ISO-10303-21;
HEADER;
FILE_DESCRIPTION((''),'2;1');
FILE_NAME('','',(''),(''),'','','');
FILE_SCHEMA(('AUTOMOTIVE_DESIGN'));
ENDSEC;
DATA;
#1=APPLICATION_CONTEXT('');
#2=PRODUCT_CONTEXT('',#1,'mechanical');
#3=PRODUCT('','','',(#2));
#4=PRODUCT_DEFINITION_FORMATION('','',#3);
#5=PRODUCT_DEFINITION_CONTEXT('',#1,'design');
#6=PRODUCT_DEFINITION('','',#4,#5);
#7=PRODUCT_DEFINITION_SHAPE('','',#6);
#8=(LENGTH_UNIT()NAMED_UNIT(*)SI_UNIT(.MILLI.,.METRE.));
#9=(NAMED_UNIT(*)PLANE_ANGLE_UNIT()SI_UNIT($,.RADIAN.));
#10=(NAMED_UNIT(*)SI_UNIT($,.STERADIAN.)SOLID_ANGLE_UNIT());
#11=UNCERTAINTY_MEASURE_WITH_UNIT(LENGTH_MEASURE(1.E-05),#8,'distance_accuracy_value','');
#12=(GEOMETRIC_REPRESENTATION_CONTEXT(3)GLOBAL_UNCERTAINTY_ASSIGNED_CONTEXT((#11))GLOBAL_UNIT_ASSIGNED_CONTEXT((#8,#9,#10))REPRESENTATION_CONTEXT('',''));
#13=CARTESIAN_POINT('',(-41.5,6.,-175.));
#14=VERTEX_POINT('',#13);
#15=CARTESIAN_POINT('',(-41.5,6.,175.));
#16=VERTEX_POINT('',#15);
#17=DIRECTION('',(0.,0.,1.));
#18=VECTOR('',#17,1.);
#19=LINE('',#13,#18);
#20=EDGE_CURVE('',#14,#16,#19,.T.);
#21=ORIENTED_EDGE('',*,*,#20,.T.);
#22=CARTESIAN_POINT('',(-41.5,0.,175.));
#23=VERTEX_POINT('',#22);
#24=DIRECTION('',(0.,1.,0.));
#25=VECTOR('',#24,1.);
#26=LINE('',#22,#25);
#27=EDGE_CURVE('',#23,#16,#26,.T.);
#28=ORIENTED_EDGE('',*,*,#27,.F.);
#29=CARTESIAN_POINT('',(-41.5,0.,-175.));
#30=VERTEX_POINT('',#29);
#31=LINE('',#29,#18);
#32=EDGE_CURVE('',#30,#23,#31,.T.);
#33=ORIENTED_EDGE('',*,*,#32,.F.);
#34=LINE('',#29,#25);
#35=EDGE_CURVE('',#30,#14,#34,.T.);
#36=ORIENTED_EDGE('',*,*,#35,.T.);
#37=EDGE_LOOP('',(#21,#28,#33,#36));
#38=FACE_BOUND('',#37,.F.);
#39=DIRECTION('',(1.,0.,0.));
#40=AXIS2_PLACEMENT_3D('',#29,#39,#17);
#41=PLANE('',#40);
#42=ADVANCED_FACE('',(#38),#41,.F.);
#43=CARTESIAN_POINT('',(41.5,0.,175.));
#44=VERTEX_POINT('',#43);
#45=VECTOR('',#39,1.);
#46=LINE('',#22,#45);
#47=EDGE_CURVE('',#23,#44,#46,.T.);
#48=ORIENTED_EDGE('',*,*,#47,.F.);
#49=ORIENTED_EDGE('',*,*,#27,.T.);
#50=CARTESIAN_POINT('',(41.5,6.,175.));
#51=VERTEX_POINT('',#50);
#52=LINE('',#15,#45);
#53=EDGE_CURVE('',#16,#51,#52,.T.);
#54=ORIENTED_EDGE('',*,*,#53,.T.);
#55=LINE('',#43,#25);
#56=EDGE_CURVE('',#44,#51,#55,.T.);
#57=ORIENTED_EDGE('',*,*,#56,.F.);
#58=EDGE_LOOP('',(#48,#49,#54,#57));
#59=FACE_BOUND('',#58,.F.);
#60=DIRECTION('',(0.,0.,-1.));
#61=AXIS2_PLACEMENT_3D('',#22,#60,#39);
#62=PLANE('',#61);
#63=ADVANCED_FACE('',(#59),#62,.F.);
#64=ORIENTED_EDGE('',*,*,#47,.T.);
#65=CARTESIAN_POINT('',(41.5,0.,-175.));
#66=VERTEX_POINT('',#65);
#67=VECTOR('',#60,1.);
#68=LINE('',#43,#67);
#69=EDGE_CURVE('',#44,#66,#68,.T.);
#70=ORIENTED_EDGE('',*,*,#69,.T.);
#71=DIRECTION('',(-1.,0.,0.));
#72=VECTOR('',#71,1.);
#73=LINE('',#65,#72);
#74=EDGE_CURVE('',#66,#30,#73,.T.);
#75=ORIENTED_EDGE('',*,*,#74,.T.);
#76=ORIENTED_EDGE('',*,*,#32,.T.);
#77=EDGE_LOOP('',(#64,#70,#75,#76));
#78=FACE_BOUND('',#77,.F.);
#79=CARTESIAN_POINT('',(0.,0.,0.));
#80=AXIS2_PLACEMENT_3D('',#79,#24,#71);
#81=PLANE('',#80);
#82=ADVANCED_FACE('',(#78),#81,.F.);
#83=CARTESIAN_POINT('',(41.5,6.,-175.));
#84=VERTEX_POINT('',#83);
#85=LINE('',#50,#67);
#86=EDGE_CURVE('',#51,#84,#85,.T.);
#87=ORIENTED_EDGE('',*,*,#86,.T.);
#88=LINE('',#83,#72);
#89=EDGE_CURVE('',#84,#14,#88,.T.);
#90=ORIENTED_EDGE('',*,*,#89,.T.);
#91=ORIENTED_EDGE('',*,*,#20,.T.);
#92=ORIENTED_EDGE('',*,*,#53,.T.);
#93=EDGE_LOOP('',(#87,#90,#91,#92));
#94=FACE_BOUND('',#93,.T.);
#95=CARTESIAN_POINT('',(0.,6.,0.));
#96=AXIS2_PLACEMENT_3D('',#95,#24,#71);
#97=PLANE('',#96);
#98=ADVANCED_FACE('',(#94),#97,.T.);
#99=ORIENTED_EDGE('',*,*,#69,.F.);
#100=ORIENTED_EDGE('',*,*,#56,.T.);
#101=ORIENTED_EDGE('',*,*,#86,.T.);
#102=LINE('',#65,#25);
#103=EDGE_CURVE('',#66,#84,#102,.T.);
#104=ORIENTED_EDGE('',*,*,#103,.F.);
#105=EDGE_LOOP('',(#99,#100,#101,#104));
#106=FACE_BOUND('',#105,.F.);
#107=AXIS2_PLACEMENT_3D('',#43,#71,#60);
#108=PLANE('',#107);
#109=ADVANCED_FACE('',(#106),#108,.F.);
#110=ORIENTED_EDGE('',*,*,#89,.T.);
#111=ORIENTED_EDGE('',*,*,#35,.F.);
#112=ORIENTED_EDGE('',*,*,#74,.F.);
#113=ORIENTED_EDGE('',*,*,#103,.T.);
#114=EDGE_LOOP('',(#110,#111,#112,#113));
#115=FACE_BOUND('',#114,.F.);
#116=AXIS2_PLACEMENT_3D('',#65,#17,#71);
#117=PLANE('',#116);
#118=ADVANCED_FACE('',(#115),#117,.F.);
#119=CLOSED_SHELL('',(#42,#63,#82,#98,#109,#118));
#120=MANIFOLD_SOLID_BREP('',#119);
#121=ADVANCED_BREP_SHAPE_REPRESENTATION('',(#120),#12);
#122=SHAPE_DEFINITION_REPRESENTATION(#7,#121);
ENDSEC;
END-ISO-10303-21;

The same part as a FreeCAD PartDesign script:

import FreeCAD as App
import Part
import Sketcher
from FreeCAD import Vector
Q = App.Units.Quantity


def add_polygon(sketch, points):
    """Adds a closed chain of lines whose ends are joined by coincident constraints."""
    first, n = sketch.GeometryCount, len(points)
    for a, b in zip(points, points[1:] + points[:1]):
        sketch.addGeometry(Part.LineSegment(App.Vector(*a, 0), App.Vector(*b, 0)), False)
    for i in range(n):
        sketch.addConstraint(Sketcher.Constraint("Coincident", first + i, 2, first + (i + 1) % n, 1))

doc = App.newDocument("Part")
params = doc.addObject("Spreadsheet::Sheet", "Params")
for row, (alias, value) in enumerate([
    ("sketch1_width", "83 mm"),
    ("sketch1_height", "350 mm"),
    ("pad1_length", "6 mm"),
], start=1):
    params.set(f"A{row}", alias)
    params.set(f"B{row}", "=" + value)
    params.setAlias(f"B{row}", alias)

body = doc.addObject("PartDesign::Body", "Body")

sketch1 = doc.addObject("Sketcher::SketchObject", "Sketch")
body.addObject(sketch1)
sketch1.AttachmentSupport = (doc.XZ_Plane, [""])
sketch1.MapMode = "FlatFace"
add_polygon(sketch1, [(-42, -175), (-42, 175), (42, 175), (42, -175)])
sketch1.addConstraint([
    Sketcher.Constraint("Vertical", 0),
    Sketcher.Constraint("Horizontal", 1),
    Sketcher.Constraint("Vertical", 2),
    Sketcher.Constraint("Horizontal", 3),
    Sketcher.Constraint("Symmetric", 0, 2, 2, 2, -1, 1),
    Sketcher.Constraint("DistanceX", 1, 1, 1, 2, Q("83 mm")),
    Sketcher.Constraint("DistanceY", 0, 1, 0, 2, Q("350 mm")),
])
sketch1.setExpression("Constraints[9]", "Params.sketch1_width")
sketch1.setExpression("Constraints[10]", "Params.sketch1_height")
pad1 = doc.addObject("PartDesign::Pad", "Pad")
body.addObject(pad1)
pad1.Profile = sketch1
pad1.setExpression("Length", "Params.pad1_length")
pad1.Reversed = True

doc.recompute()
